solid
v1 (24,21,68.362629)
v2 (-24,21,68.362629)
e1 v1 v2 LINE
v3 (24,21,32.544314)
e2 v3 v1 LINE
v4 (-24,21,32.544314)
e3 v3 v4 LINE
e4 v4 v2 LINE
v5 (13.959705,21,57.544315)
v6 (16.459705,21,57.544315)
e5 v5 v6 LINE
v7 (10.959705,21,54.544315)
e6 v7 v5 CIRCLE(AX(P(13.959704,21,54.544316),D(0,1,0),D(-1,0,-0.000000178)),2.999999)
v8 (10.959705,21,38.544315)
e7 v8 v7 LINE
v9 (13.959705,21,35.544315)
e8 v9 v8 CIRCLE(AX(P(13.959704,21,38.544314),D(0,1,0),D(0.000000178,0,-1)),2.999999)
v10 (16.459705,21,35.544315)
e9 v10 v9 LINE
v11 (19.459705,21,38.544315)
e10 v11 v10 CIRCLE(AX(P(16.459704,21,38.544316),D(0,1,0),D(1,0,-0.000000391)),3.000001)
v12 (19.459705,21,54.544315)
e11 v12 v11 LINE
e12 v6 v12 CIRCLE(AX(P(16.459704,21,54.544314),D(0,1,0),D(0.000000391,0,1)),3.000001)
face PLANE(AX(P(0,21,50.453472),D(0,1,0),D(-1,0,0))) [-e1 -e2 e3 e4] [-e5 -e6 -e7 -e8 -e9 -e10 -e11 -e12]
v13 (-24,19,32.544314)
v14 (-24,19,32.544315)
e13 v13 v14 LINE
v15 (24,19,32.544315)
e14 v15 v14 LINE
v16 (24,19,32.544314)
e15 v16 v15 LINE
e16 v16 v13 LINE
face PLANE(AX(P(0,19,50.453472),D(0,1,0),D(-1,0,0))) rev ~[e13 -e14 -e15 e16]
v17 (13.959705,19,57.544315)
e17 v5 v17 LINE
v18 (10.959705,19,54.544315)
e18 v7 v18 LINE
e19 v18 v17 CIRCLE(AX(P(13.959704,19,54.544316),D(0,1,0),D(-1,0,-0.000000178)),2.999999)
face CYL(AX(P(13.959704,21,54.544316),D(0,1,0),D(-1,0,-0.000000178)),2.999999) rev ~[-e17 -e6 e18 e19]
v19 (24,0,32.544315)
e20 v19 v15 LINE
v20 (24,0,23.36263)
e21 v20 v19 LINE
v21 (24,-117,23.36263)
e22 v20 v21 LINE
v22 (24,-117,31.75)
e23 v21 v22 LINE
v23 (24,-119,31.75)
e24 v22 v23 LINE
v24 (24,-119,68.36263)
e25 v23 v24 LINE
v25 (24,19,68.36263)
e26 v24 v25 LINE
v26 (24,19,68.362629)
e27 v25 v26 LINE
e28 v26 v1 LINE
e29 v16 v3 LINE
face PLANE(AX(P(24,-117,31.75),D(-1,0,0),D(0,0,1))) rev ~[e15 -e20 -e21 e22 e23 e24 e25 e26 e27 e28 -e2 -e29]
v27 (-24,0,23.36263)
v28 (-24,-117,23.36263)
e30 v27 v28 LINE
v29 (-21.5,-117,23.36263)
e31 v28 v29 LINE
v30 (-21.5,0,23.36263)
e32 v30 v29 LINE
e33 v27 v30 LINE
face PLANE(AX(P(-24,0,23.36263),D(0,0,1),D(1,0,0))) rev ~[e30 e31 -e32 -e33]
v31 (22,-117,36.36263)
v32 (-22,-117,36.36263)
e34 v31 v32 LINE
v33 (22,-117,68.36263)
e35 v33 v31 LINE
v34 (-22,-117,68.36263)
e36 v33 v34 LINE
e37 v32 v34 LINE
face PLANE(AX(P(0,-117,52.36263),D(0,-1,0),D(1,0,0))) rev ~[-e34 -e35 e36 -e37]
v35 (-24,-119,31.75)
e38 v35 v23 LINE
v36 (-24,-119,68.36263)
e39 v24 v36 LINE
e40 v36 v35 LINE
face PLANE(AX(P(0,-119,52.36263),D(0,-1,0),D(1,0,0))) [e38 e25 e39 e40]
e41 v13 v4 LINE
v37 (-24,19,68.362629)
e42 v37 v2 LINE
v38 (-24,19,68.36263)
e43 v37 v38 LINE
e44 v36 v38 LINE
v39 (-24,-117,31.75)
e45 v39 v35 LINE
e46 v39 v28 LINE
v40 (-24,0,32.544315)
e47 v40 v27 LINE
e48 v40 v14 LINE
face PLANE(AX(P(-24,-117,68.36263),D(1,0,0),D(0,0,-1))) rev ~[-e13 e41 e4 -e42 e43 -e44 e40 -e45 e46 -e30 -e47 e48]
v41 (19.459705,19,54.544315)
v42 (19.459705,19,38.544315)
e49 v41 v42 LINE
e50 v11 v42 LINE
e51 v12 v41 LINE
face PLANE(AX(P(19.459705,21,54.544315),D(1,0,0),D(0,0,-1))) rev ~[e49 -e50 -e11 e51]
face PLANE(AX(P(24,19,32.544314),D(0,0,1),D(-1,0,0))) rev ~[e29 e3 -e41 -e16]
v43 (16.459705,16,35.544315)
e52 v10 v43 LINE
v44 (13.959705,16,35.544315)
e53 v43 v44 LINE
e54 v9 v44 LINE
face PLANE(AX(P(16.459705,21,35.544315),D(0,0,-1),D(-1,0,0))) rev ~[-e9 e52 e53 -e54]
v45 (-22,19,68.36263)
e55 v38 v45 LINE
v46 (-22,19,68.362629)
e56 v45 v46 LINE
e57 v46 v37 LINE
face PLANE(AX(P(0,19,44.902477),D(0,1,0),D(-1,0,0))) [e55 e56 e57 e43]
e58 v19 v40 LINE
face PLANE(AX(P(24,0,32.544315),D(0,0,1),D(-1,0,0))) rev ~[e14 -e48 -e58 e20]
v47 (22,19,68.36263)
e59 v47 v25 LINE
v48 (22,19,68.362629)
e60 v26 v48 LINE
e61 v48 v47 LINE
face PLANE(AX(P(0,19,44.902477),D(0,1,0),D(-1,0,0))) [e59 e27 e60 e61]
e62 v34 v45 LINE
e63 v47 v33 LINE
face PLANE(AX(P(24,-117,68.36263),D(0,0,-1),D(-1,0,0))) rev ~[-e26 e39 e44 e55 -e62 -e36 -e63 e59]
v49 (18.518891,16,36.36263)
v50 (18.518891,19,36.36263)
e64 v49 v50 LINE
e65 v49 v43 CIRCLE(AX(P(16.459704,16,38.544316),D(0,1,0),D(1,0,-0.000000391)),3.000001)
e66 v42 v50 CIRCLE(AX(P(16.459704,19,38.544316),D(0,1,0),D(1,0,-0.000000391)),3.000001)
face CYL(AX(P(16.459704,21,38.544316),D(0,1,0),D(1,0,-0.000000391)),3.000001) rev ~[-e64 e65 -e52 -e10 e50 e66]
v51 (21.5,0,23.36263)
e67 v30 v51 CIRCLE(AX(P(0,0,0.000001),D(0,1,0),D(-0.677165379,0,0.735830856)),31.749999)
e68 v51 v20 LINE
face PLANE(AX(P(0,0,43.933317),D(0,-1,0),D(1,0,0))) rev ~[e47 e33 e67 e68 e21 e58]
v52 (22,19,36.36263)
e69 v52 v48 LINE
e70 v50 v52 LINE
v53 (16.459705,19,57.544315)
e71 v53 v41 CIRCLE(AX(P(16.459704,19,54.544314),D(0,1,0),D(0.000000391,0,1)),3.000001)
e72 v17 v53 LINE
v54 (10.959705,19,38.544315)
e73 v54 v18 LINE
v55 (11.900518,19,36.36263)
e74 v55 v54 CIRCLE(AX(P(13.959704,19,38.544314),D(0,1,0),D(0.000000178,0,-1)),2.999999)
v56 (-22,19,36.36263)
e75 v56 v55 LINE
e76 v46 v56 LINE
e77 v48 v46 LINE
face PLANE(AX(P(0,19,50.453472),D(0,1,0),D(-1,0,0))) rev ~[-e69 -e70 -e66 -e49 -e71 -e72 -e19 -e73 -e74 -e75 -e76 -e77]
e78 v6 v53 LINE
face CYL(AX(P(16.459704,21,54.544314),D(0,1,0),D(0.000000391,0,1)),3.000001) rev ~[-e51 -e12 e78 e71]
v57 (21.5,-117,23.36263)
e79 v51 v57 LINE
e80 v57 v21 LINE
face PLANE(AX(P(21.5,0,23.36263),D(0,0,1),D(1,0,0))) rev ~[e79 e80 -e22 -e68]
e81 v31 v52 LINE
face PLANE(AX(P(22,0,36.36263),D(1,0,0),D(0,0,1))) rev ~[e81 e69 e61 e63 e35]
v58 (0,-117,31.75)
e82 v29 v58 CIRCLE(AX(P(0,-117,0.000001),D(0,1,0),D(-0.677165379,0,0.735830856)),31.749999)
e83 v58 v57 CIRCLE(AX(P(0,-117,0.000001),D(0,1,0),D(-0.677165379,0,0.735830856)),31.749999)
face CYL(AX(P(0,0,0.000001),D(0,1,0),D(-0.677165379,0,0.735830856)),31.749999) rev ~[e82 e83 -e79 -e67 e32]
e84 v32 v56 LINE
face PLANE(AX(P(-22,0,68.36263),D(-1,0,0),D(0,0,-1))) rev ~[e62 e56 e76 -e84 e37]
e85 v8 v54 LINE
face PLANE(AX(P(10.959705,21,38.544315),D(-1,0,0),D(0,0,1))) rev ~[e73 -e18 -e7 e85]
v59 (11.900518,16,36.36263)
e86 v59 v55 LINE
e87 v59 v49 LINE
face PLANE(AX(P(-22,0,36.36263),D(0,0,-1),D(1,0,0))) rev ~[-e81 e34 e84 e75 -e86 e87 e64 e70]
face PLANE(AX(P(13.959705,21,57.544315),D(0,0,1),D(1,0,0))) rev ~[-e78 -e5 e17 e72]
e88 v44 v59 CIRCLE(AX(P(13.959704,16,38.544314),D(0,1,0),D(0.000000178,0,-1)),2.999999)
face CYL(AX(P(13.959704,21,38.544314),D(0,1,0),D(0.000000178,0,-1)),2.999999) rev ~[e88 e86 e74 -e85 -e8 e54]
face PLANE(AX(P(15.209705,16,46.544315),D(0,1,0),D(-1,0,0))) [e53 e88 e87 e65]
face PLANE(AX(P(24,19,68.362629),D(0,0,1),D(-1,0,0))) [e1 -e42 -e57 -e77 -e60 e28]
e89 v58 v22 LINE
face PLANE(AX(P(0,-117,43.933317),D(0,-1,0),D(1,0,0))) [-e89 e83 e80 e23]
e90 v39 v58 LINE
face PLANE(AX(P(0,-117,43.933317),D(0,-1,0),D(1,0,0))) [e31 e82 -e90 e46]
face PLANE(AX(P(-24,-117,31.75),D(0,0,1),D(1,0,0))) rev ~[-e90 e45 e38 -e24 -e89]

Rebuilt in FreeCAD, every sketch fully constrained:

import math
import FreeCAD as App
import Part
import Sketcher

V = App.Vector


def add_polygon(sketch, points):
    """Adds a closed chain of lines whose ends are joined by coincident constraints."""
    first, n = sketch.GeometryCount, len(points)
    for a, b in zip(points, points[1:] + points[:1]):
        sketch.addGeometry(Part.LineSegment(App.Vector(*a, 0), App.Vector(*b, 0)), False)
    for i in range(n):
        sketch.addConstraint(Sketcher.Constraint("Coincident", first + i, 2, first + (i + 1) % n, 1))

doc = App.newDocument("Part")
body = doc.addObject("PartDesign::Body", "Body")

sketch1 = doc.addObject("Sketcher::SketchObject", "Sketch")
body.addObject(sketch1)
sketch1.AttachmentSupport = (doc.XZ_Plane, [""])
sketch1.MapMode = "FlatFace"
sketch1.addGeometry([
    Part.LineSegment(V(24, 68.36263, 0), V(22, 68.36263, 0)),
    Part.LineSegment(V(22, 68.36263, 0), V(22, 36.36263, 0)),
    Part.LineSegment(V(22, 36.36263, 0), V(-22, 36.36263, 0)),
    Part.LineSegment(V(-22, 36.36263, 0), V(-22, 68.36263, 0)),
    Part.LineSegment(V(-22, 68.36263, 0), V(-24, 68.36263, 0)),
    Part.LineSegment(V(-24, 68.36263, 0), V(-24, 23.36263, 0)),
    Part.LineSegment(V(-24, 23.36263, 0), V(-21.5, 23.36263, 0)),
    Part.ArcOfCircle(Part.Circle(V(0, 0.000001, 0), V(0, 0, 1), 31.749999), math.radians(47.377469), math.radians(132.622531)),
    Part.LineSegment(V(21.5, 23.36263, 0), V(24, 23.36263, 0)),
    Part.LineSegment(V(24, 23.36263, 0), V(24, 68.36263, 0)),
], False)
sketch1.addConstraint([
    Sketcher.Constraint("Coincident", 0, 2, 1, 1),
    Sketcher.Constraint("Coincident", 1, 2, 2, 1),
    Sketcher.Constraint("Coincident", 2, 2, 3, 1),
    Sketcher.Constraint("Coincident", 3, 2, 4, 1),
    Sketcher.Constraint("Coincident", 4, 2, 5, 1),
    Sketcher.Constraint("Coincident", 5, 2, 6, 1),
    Sketcher.Constraint("Coincident", 6, 2, 7, 2),
    Sketcher.Constraint("Coincident", 7, 1, 8, 1),
    Sketcher.Constraint("Coincident", 8, 2, 9, 1),
    Sketcher.Constraint("Coincident", 9, 2, 0, 1),
    Sketcher.Constraint("Horizontal", 0),
    Sketcher.Constraint("Vertical", 1),
    Sketcher.Constraint("Horizontal", 2),
    Sketcher.Constraint("Vertical", 3),
    Sketcher.Constraint("Horizontal", 4),
    Sketcher.Constraint("Vertical", 5),
    Sketcher.Constraint("Horizontal", 6),
    Sketcher.Constraint("Horizontal", 8),
    Sketcher.Constraint("Vertical", 9),
    Sketcher.Constraint("Coincident", 7, 3, -1, 1),
    Sketcher.Constraint("Symmetric", 0, 2, 3, 2, -2),
    Sketcher.Constraint("Symmetric", 5, 2, 8, 2, -2),
    Sketcher.Constraint("DistanceX", 0, 2, 0, 1, 2.0),
    Sketcher.Constraint("DistanceX", 2, 2, 2, 1, 44.0),
    Sketcher.Constraint("DistanceY", 1, 2, 1, 1, 32.0),
    Sketcher.Constraint("DistanceY", 5, 2, 5, 1, 45.0),
    Sketcher.Constraint("Radius", 7, 31.749999),
    Sketcher.Constraint("DistanceX", 6, 1, 6, 2, 2.5),
])
pad1 = doc.addObject("PartDesign::Pad", "Pad")
body.addObject(pad1)
pad1.Profile = sketch1
pad1.Length = 117

sketch2 = doc.addObject("Sketcher::SketchObject", "Sketch001")
body.addObject(sketch2)
sketch2.AttachmentSupport = (doc.XZ_Plane, [""])
sketch2.MapMode = "FlatFace"
add_polygon(sketch2, [(24, 32.544315), (-24, 32.544315), (-24, 68.36263), (-22, 68.36263), (-22, 36.36263), (22, 36.36263), (22, 68.36263), (24, 68.36263)])
sketch2.addConstraint([
    Sketcher.Constraint("Horizontal", 0),
    Sketcher.Constraint("Vertical", 1),
    Sketcher.Constraint("Horizontal", 2),
    Sketcher.Constraint("Vertical", 3),
    Sketcher.Constraint("Horizontal", 4),
    Sketcher.Constraint("Vertical", 5),
    Sketcher.Constraint("Horizontal", 6),
    Sketcher.Constraint("Vertical", 7),
    Sketcher.Constraint("Symmetric", 2, 2, 5, 2, -2),
    Sketcher.Constraint("Equal", 2, 6),
    Sketcher.Constraint("DistanceX", 0, 2, 0, 1, 48.0),
    Sketcher.Constraint("DistanceX", 2, 1, 2, 2, 2.0),
    Sketcher.Constraint("DistanceY", 3, 2, 3, 1, 32.0),
    Sketcher.Constraint("DistanceY", 1, 1, 1, 2, 35.818315),
    Sketcher.Constraint("DistanceY", -1, 1, 1, 2, 68.36263),
])
pad2 = doc.addObject("PartDesign::Pad", "Pad001")
body.addObject(pad2)
pad2.Profile = sketch2
pad2.Length = 19
pad2.Reversed = True

sketch3 = doc.addObject("Sketcher::SketchObject", "Sketch002")
body.addObject(sketch3)
sketch3.AttachmentSupport = (doc.XZ_Plane, [""])
sketch3.MapMode = "FlatFace"
sketch3.AttachmentOffset = App.Placement(V(0, 0, -19), App.Rotation())
add_polygon(sketch3, [(24, 68.362629), (24, 32.544314), (-24, 32.544314), (-24, 68.362629)])
sketch3.addConstraint([
    Sketcher.Constraint("Vertical", 0),
    Sketcher.Constraint("Horizontal", 1),
    Sketcher.Constraint("Vertical", 2),
    Sketcher.Constraint("Horizontal", 3),
    Sketcher.Constraint("DistanceX", 1, 2, 1, 1, 48.0),
    Sketcher.Constraint("DistanceX", -1, 1, 0, 2, 24.0),
    Sketcher.Constraint("DistanceY", 0, 2, 0, 1, 35.818315),
    Sketcher.Constraint("DistanceY", -1, 1, 2, 2, 68.362629),
])
pad3 = doc.addObject("PartDesign::Pad", "Pad002")
body.addObject(pad3)
pad3.Profile = sketch3
pad3.Length = 2
pad3.Reversed = True

sketch4 = doc.addObject("Sketcher::SketchObject", "Sketch003")
body.addObject(sketch4)
sketch4.AttachmentSupport = (doc.XZ_Plane, [""])
sketch4.MapMode = "FlatFace"
sketch4.AttachmentOffset = App.Placement(V(0, 0, 117), App.Rotation())
add_polygon(sketch4, [(-24, 68.36263), (-24, 31.75), (24, 31.75), (24, 68.36263)])
sketch4.addConstraint([
    Sketcher.Constraint("Vertical", 0),
    Sketcher.Constraint("Horizontal", 1),
    Sketcher.Constraint("Vertical", 2),
    Sketcher.Constraint("Horizontal", 3),
    Sketcher.Constraint("DistanceX", 1, 1, 1, 2, 48.0),
    Sketcher.Constraint("DistanceX", 0, 2, -1, 1, 24.0),
    Sketcher.Constraint("DistanceY", -1, 1, 0, 2, 31.75),
    Sketcher.Constraint("DistanceY", 0, 2, 0, 1, 36.61263),
])
pad4 = doc.addObject("PartDesign::Pad", "Pad003")
body.addObject(pad4)
pad4.Profile = sketch4
pad4.Length = 2

sketch5 = doc.addObject("Sketcher::SketchObject", "Sketch004")
body.addObject(sketch5)
sketch5.AttachmentSupport = (doc.XZ_Plane, [""])
sketch5.MapMode = "FlatFace"
sketch5.AttachmentOffset = App.Placement(V(0, 0, -21), App.Rotation())
sketch5.addGeometry([
    Part.LineSegment(V(13.959705, 57.544315, 0), V(16.459705, 57.544315, 0)),
    Part.ArcOfCircle(Part.Circle(V(16.459704, 54.544314, 0), V(0, 0, 1), 3.000001), math.radians(0.000022), math.radians(89.999978)),
    Part.LineSegment(V(19.459705, 54.544315, 0), V(19.459705, 38.544315, 0)),
    Part.ArcOfCircle(Part.Circle(V(16.459704, 38.544316, 0), V(0, 0, 1), 3.000001), math.radians(-89.999978), math.radians(-0.000022)),
    Part.LineSegment(V(16.459705, 35.544315, 0), V(13.959705, 35.544315, 0)),
    Part.ArcOfCircle(Part.Circle(V(13.959704, 38.544314, 0), V(0, 0, 1), 2.999999), math.radians(179.99999), math.radians(270.00001)),
    Part.LineSegment(V(10.959705, 38.544315, 0), V(10.959705, 54.544315, 0)),
    Part.ArcOfCircle(Part.Circle(V(13.959704, 54.544316, 0), V(0, 0, 1), 2.999999), math.radians(89.99999), math.radians(180.00001)),
], False)
sketch5.addConstraint([
    Sketcher.Constraint("Tangent", 0, 2, 1, 2),
    Sketcher.Constraint("Tangent", 1, 1, 2, 1),
    Sketcher.Constraint("Tangent", 2, 2, 3, 2),
    Sketcher.Constraint("Tangent", 3, 1, 4, 1),
    Sketcher.Constraint("Tangent", 4, 2, 5, 2),
    Sketcher.Constraint("Tangent", 5, 1, 6, 1),
    Sketcher.Constraint("Tangent", 6, 2, 7, 2),
    Sketcher.Constraint("Tangent", 7, 1, 0, 1),
    Sketcher.Constraint("Horizontal", 0),
    Sketcher.Constraint("Vertical", 2),
    Sketcher.Constraint("Horizontal", 4),
    Sketcher.Constraint("Vertical", 6),
    Sketcher.Constraint("Equal", 1, 3),
    Sketcher.Constraint("Equal", 3, 5),
    Sketcher.Constraint("Equal", 5, 7),
    Sketcher.Constraint("Radius", 1, 3.000001),
    Sketcher.Constraint("DistanceY", 2, 2, 2, 1, 16.0),
    Sketcher.Constraint("DistanceX", 0, 1, 0, 2, 2.5),
    Sketcher.Constraint("DistanceX", -1, 1, 1, 3, 16.459704),
    Sketcher.Constraint("DistanceY", -1, 1, 1, 3, 54.544314),
])
pocket1 = doc.addObject("PartDesign::Pocket", "Pocket")
body.addObject(pocket1)
pocket1.Profile = sketch5
pocket1.Length = 5
pocket1.Reversed = True

doc.recompute()
